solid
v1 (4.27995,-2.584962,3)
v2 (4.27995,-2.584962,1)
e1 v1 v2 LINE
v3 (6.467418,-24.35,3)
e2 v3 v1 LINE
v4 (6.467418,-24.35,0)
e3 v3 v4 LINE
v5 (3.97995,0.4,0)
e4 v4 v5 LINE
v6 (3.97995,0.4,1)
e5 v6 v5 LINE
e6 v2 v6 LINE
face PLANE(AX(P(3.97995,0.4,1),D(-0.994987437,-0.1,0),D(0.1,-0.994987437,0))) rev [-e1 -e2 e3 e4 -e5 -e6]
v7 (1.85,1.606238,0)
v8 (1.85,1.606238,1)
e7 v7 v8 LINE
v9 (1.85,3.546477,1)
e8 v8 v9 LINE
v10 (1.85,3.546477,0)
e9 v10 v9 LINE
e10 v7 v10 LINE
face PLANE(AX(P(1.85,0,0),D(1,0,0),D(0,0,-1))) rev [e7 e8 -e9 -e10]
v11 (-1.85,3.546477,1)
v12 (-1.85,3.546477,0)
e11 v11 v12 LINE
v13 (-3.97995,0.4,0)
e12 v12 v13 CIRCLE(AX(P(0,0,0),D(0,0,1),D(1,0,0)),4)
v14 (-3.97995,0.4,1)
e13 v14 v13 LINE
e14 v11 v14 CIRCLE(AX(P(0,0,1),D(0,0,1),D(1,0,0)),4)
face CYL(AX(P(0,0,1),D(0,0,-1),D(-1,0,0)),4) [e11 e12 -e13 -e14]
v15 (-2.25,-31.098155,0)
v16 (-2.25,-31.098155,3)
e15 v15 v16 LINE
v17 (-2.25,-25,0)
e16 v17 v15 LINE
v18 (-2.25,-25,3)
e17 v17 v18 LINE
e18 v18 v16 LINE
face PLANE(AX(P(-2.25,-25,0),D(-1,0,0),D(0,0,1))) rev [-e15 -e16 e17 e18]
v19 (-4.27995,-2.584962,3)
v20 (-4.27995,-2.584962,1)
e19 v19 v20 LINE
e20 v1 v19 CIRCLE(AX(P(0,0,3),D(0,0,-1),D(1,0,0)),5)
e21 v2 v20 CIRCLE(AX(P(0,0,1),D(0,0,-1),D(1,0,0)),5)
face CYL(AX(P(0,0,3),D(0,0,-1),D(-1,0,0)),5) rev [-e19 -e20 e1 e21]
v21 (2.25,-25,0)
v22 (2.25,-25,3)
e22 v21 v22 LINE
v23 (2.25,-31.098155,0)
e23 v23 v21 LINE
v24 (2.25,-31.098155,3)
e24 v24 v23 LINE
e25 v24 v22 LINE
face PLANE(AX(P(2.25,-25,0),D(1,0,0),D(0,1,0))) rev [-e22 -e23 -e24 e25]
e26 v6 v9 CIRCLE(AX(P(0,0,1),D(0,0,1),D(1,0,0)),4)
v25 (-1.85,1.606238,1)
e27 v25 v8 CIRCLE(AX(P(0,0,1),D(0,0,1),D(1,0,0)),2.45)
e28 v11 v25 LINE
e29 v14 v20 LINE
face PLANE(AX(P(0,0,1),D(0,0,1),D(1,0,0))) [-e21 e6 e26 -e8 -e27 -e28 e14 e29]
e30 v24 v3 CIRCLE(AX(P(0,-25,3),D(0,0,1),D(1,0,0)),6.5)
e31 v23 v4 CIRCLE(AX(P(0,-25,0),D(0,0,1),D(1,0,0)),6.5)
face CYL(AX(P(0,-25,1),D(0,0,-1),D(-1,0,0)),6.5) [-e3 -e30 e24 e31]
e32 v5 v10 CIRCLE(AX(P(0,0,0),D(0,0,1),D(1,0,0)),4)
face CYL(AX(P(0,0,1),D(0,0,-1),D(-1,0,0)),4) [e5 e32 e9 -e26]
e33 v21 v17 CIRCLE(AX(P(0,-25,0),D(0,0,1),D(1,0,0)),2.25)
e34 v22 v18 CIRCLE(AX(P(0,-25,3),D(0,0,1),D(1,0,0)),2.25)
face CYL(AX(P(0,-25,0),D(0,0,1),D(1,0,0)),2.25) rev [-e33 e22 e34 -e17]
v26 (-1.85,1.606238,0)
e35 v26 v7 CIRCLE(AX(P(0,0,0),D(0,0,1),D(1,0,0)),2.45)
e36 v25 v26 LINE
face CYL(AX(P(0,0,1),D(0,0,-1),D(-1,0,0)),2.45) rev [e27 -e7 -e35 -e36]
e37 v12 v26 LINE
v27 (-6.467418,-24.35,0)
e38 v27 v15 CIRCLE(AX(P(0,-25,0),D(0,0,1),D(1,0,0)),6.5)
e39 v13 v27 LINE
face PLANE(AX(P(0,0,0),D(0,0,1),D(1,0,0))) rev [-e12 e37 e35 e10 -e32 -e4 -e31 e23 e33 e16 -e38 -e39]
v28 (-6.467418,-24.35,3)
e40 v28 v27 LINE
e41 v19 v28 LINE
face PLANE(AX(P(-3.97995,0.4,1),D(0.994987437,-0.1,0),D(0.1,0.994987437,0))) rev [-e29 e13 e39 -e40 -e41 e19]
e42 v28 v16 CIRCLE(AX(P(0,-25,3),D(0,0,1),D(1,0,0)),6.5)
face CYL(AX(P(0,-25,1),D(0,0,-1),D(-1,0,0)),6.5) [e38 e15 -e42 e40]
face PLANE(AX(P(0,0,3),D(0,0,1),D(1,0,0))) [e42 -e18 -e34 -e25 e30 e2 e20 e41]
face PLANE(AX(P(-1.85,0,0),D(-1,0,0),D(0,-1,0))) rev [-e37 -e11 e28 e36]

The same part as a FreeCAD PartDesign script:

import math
import FreeCAD as App
import Part
import Sketcher

V = App.Vector
Q = App.Units.Quantity

doc = App.newDocument("Part")
body = doc.addObject("PartDesign::Body", "Body")

# Sketch on XY plane
sketch1 = body.newObject("Sketcher::SketchObject", "Sketch")
sketch1.AttachmentSupport = (doc.getObject("XY_Plane"), [""])
sketch1.MapMode = "FlatFace"
sketch1.addGeometry(Part.LineSegment(V(6.5, -24.4, 0), V(4, 0.4, 0)), False)
sketch1.addGeometry(Part.ArcOfCircle(Part.Circle(V(0, 0, 0), V(0, 0, 1), 4), math.radians(6), math.radians(174)), False)
sketch1.addGeometry(Part.LineSegment(V(-4, 0.4, 0), V(-6.5, -24.4, 0)), False)
sketch1.addGeometry(Part.ArcOfCircle(Part.Circle(V(0, -25, 0), V(0, 0, 1), 6.5), math.radians(174), math.radians(366)), False)
sketch1.addGeometry(Part.Circle(V(0, 0, 0), V(0, 0, 1), 2.5), False)
sketch1.addConstraint(Sketcher.Constraint("Tangent", 0, 2, 1, 1))
sketch1.addConstraint(Sketcher.Constraint("Tangent", 1, 2, 2, 1))
sketch1.addConstraint(Sketcher.Constraint("Tangent", 2, 2, 3, 1))
sketch1.addConstraint(Sketcher.Constraint("Tangent", 3, 2, 0, 1))
sketch1.addConstraint(Sketcher.Constraint("Coincident", 1, 3, -1, 1))
sketch1.addConstraint(Sketcher.Constraint("Coincident", 4, 3, -1, 1))
sketch1.addConstraint(Sketcher.Constraint("PointOnObject", 3, 3, -2))
sketch1.addConstraint(Sketcher.Constraint("Radius", 1, Q("4 mm")))
sketch1.addConstraint(Sketcher.Constraint("Diameter", 4, Q("4.9 mm")))
sketch1.addConstraint(Sketcher.Constraint("Radius", 3, Q("6.5 mm")))
sketch1.addConstraint(Sketcher.Constraint("DistanceY", 3, 3, -1, 1, Q("25 mm")))
pad1 = body.newObject("PartDesign::Pad", "Pad")
pad1.Profile = sketch1
pad1.Length = 1

# Sketch on XY plane
sketch2 = body.newObject("Sketcher::SketchObject", "Sketch001")
sketch2.AttachmentSupport = (doc.getObject("XY_Plane"), [""])
sketch2.MapMode = "FlatFace"
sketch2.AttachmentOffset = App.Placement(V(0, 0, 1), App.Rotation())
sketch2.addGeometry(Part.LineSegment(V(-1.9, 4, 0), V(-1.9, 0, 0)), False)
sketch2.addGeometry(Part.LineSegment(V(-1.9, 0, 0), V(1.9, 0, 0)), False)
sketch2.addGeometry(Part.LineSegment(V(1.9, 0, 0), V(1.9, 4, 0)), False)
sketch2.addGeometry(Part.LineSegment(V(1.9, 4, 0), V(-1.9, 4, 0)), False)
sketch2.addConstraint(Sketcher.Constraint("Coincident", 0, 2, 1, 1))
sketch2.addConstraint(Sketcher.Constraint("Coincident", 1, 2, 2, 1))
sketch2.addConstraint(Sketcher.Constraint("Coincident", 2, 2, 3, 1))
sketch2.addConstraint(Sketcher.Constraint("Coincident", 3, 2, 0, 1))
sketch2.addConstraint(Sketcher.Constraint("Vertical", 0))
sketch2.addConstraint(Sketcher.Constraint("Horizontal", 1))
sketch2.addConstraint(Sketcher.Constraint("Vertical", 2))
sketch2.addConstraint(Sketcher.Constraint("Horizontal", 3))
sketch2.addConstraint(Sketcher.Constraint("Symmetric", 0, 2, 1, 2, -1, 1))
sketch2.addConstraint(Sketcher.Constraint("DistanceY", 0, 2, 0, 1, Q("4 mm")))
sketch2.addConstraint(Sketcher.Constraint("DistanceX", 1, 1, 1, 2, Q("3.7 mm")))
pocket1 = body.newObject("PartDesign::Pocket", "Pocket")
pocket1.Profile = sketch2
pocket1.Length = 1

# Sketch on XY plane
sketch3 = body.newObject("Sketcher::SketchObject", "Sketch002")
sketch3.AttachmentSupport = (doc.getObject("XY_Plane"), [""])
sketch3.MapMode = "FlatFace"
sketch3.AttachmentOffset = App.Placement(V(0, 0, 1), App.Rotation())
sketch3.addGeometry(Part.LineSegment(V(-4.3, -2.6, 0), V(-6.5, -24.4, 0)), False)
sketch3.addGeometry(Part.ArcOfCircle(Part.Circle(V(0, -25, 0), V(0, 0, 1), 6.5), math.radians(174), math.radians(366)), False)
sketch3.addGeometry(Part.LineSegment(V(6.5, -24.4, 0), V(4.3, -2.6, 0)), False)
sketch3.addGeometry(Part.ArcOfCircle(Part.Circle(V(0, 0, 0), V(0, 0, 1), 5), math.radians(-149), math.radians(-31)), False)
sketch3.addConstraint(Sketcher.Constraint("Tangent", 0, 2, 1, 1))
sketch3.addConstraint(Sketcher.Constraint("Tangent", 1, 2, 2, 1))
sketch3.addConstraint(Sketcher.Constraint("Coincident", 2, 2, 3, 2))
sketch3.addConstraint(Sketcher.Constraint("Coincident", 3, 1, 0, 1))
sketch3.addConstraint(Sketcher.Constraint("Coincident", 3, 3, -1, 1))
sketch3.addConstraint(Sketcher.Constraint("Symmetric", 0, 2, 1, 2, -2))
sketch3.addConstraint(Sketcher.Constraint("Radius", 3, Q("5 mm")))
sketch3.addConstraint(Sketcher.Constraint("Radius", 1, Q("6.5 mm")))
sketch3.addConstraint(Sketcher.Constraint("DistanceY", 1, 3, -1, 1, Q("25 mm")))
sketch3.addConstraint(Sketcher.Constraint("DistanceY", 0, 2, -1, 1, Q("24.35 mm")))
pad2 = body.newObject("PartDesign::Pad", "Pad001")
pad2.Profile = sketch3
pad2.Length = 2

# Sketch on XY plane
sketch4 = body.newObject("Sketcher::SketchObject", "Sketch003")
sketch4.AttachmentSupport = (doc.getObject("XY_Plane"), [""])
sketch4.MapMode = "FlatFace"
sketch4.AttachmentOffset = App.Placement(V(0, 0, 3), App.Rotation())
sketch4.addGeometry(Part.LineSegment(V(2.2, -31.5, 0), V(2.2, -25, 0)), False)
sketch4.addGeometry(Part.ArcOfCircle(Part.Circle(V(0, -25, 0), V(0, 0, 1), 2.2), math.radians(0), math.radians(180)), False)
sketch4.addGeometry(Part.LineSegment(V(-2.2, -25, 0), V(-2.2, -31.5, 0)), False)
sketch4.addGeometry(Part.ArcOfCircle(Part.Circle(V(0, -31.5, 0), V(0, 0, 1), 2.2), math.radians(180), math.radians(360)), False)
sketch4.addConstraint(Sketcher.Constraint("Tangent", 0, 2, 1, 1))
sketch4.addConstraint(Sketcher.Constraint("Tangent", 1, 2, 2, 1))
sketch4.addConstraint(Sketcher.Constraint("Tangent", 2, 2, 3, 1))
sketch4.addConstraint(Sketcher.Constraint("Tangent", 3, 2, 0, 1))
sketch4.addConstraint(Sketcher.Constraint("Vertical", 0))
sketch4.addConstraint(Sketcher.Constraint("Vertical", 2))
sketch4.addConstraint(Sketcher.Constraint("PointOnObject", 1, 3, -2))
sketch4.addConstraint(Sketcher.Constraint("Radius", 1, Q("2.25 mm")))
sketch4.addConstraint(Sketcher.Constraint("DistanceY", 0, 1, 0, 2, Q("6.5 mm")))
sketch4.addConstraint(Sketcher.Constraint("DistanceY", 1, 3, -1, 1, Q("25 mm")))
pocket2 = body.newObject("PartDesign::Pocket", "Pocket001")
pocket2.Profile = sketch4
pocket2.Type = "ThroughAll"

doc.recompute()
